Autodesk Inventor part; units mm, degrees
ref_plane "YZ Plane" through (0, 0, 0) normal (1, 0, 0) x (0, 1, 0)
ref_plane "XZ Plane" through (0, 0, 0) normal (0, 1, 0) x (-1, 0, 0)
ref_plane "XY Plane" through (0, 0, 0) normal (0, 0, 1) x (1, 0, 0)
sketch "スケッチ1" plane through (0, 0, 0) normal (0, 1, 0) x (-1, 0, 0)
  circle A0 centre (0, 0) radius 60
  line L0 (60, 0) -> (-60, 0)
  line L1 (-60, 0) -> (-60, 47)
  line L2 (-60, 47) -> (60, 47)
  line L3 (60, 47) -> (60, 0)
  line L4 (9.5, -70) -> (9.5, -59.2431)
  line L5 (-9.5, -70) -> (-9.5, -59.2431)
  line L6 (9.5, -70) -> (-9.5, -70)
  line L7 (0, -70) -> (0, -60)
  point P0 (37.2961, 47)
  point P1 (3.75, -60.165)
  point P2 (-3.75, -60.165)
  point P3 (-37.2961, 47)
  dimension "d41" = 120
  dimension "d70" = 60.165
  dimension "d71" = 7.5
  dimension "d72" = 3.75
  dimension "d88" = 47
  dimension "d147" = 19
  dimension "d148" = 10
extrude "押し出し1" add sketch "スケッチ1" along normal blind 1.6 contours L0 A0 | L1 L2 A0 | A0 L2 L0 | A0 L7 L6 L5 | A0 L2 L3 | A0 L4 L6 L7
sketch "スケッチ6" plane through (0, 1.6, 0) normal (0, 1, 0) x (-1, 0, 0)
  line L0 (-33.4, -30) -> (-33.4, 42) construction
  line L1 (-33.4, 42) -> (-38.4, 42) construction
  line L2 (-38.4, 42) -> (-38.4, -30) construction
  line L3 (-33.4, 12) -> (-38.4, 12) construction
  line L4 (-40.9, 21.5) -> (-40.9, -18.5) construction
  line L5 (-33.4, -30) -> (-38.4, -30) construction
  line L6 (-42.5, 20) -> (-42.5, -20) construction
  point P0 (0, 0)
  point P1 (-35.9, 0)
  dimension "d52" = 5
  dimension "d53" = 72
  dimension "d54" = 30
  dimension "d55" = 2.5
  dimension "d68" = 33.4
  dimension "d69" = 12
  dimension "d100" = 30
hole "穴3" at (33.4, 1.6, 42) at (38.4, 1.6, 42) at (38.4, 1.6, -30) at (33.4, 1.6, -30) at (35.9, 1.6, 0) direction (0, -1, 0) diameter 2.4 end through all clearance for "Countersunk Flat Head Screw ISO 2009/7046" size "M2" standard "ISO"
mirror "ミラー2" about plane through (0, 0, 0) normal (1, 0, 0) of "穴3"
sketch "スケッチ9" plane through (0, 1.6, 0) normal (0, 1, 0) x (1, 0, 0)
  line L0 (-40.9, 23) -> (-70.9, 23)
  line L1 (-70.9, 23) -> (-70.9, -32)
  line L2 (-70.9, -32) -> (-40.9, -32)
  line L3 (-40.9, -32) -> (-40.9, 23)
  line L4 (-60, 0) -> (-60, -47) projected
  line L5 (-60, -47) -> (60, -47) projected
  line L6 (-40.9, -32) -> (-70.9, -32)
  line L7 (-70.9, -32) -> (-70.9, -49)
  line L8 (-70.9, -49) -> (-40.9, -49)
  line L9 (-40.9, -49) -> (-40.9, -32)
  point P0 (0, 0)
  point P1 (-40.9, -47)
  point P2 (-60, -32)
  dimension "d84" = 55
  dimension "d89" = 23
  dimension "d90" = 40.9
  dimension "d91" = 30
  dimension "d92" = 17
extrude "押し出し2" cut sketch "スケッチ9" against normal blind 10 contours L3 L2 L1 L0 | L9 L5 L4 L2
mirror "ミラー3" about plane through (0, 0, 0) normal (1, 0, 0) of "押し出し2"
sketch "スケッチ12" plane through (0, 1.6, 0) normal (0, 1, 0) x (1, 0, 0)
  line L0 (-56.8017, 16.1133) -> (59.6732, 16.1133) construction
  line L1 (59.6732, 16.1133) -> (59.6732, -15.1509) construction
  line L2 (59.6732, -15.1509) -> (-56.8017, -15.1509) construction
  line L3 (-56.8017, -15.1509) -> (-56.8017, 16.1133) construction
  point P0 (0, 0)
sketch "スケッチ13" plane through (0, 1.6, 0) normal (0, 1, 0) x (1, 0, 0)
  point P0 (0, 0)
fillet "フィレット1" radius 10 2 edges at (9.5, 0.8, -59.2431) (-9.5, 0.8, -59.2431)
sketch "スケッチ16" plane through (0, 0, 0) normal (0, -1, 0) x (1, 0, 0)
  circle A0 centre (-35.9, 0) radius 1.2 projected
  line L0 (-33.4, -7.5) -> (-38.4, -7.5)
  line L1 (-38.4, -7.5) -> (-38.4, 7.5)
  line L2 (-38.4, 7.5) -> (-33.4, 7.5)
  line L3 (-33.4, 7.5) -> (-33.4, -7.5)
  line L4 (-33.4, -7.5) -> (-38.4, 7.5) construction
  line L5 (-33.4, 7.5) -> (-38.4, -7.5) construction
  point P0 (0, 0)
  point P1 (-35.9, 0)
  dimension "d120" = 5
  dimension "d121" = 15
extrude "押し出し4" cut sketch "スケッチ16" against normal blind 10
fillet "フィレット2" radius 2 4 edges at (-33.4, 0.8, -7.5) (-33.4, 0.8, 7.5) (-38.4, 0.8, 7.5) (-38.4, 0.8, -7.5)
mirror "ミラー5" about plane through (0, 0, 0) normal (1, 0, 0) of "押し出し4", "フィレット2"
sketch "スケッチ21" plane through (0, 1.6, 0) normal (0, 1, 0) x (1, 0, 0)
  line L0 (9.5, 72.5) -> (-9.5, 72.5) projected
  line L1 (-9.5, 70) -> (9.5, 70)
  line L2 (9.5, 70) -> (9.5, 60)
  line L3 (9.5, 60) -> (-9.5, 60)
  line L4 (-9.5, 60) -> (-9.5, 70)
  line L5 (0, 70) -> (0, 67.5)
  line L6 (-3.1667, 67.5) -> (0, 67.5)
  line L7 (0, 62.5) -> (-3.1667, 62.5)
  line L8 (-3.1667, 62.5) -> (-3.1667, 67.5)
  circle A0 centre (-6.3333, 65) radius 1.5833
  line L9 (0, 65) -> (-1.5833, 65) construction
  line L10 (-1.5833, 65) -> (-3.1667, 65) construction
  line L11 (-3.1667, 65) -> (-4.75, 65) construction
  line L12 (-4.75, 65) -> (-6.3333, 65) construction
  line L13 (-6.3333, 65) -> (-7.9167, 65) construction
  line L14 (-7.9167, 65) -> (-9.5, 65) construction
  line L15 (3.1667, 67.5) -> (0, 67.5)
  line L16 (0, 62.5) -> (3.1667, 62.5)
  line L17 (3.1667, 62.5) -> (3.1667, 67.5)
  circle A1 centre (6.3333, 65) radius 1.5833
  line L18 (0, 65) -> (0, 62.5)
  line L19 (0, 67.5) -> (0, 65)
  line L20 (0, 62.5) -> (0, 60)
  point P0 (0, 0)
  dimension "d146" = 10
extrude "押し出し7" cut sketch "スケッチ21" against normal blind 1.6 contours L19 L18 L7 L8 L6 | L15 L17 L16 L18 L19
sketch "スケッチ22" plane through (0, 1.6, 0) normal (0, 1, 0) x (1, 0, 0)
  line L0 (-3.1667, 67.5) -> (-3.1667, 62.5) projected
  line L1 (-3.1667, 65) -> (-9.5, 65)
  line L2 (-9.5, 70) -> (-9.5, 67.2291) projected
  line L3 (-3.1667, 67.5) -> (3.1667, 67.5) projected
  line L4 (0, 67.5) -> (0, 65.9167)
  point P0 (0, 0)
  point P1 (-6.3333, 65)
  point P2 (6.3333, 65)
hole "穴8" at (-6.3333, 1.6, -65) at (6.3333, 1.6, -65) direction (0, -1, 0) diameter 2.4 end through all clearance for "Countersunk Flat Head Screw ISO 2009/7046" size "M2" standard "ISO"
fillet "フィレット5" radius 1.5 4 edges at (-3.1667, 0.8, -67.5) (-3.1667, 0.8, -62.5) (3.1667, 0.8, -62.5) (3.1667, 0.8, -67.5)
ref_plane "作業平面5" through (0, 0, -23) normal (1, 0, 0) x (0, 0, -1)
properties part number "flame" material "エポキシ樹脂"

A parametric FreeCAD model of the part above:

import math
import FreeCAD as App
import Part
import Sketcher
from FreeCAD import Vector


def edges_at(feature, points):
    """Names of the edges that pass closest to the given points."""
    edges = feature.Shape.Edges
    near = lambda p: min(range(len(edges)), key=lambda i: edges[i].distToShape(Part.Vertex(*p))[0])
    return sorted({f"Edge{near(p) + 1}" for p in points})


def add_polygon(sketch, points):
    """Adds a closed chain of lines whose ends are joined by coincident constraints."""
    first, n = sketch.GeometryCount, len(points)
    for a, b in zip(points, points[1:] + points[:1]):
        sketch.addGeometry(Part.LineSegment(App.Vector(*a, 0), App.Vector(*b, 0)), False)
    for i in range(n):
        sketch.addConstraint(Sketcher.Constraint("Coincident", first + i, 2, first + (i + 1) % n, 1))

doc = App.newDocument("Part")
params = doc.addObject("Spreadsheet::Sheet", "Params")
for row, (alias, value) in enumerate([
    ("sketch1_radius", "60 mm"),
    ("sketch1_width", "19 mm"),
    ("sketch1_height", "47 mm"),
    ("pad1_length", "1.6 mm"),
    ("sketch2_diameter", "2.4 mm"),
    ("hole_diameter", "2.4 mm"),
    ("sketch3_width", "30 mm"),
    ("sketch3_height", "55 mm"),
    ("sketch3_height2", "15 mm"),
    ("sketch3_width2", "10.9 mm"),
    ("pocket1_length", "10 mm"),
    ("fillet_radius", "10 mm"),
    ("sketch4_width", "5 mm"),
    ("sketch4_height", "15 mm"),
    ("sketch4_diameter", "2.4 mm"),
    ("pocket2_length", "10 mm"),
    ("fillet2_radius", "2 mm"),
    ("sketch5_height", "5 mm"),
    ("pocket3_length", "1.6 mm"),
    ("sketch6_diameter", "2.4 mm"),
    ("hole2_diameter", "2.4 mm"),
    ("fillet3_radius", "1.5 mm"),
], start=1):
    params.set(f"A{row}", alias)
    params.set(f"B{row}", "=" + value)
    params.setAlias(f"B{row}", alias)

body = doc.addObject("PartDesign::Body", "Body")

sketch1 = body.newObject("Sketcher::SketchObject", "Sketch")
sketch1.AttachmentSupport = (doc.getObject("XZ_Plane"), [""])
sketch1.MapMode = "FlatFace"
sketch1.addGeometry(Part.ArcOfCircle(Part.Circle(Vector(0, 0, 0), Vector(0, 0, 1), 60), math.radians(180), math.radians(261)), False)
sketch1.addGeometry(Part.LineSegment(Vector(-60, 0, 0), Vector(-60, 47, 0)), False)
sketch1.addGeometry(Part.LineSegment(Vector(-60, 47, 0), Vector(60, 47, 0)), False)
sketch1.addGeometry(Part.LineSegment(Vector(60, 47, 0), Vector(60, 0, 0)), False)
sketch1.addGeometry(Part.ArcOfCircle(Part.Circle(Vector(0, 0, 0), Vector(0, 0, 1), 60), math.radians(-81), math.radians(0)), False)
sketch1.addGeometry(Part.LineSegment(Vector(10, -59, 0), Vector(10, -70, 0)), False)
sketch1.addGeometry(Part.LineSegment(Vector(10, -70, 0), Vector(-10, -70, 0)), False)
sketch1.addGeometry(Part.LineSegment(Vector(-10, -70, 0), Vector(-10, -59, 0)), False)
sketch1.addConstraint(Sketcher.Constraint("Tangent", 0, 1, 1, 1))
sketch1.addConstraint(Sketcher.Constraint("Coincident", 1, 2, 2, 1))
sketch1.addConstraint(Sketcher.Constraint("Coincident", 2, 2, 3, 1))
sketch1.addConstraint(Sketcher.Constraint("Tangent", 3, 2, 4, 2))
sketch1.addConstraint(Sketcher.Constraint("Coincident", 4, 1, 5, 1))
sketch1.addConstraint(Sketcher.Constraint("Coincident", 5, 2, 6, 1))
sketch1.addConstraint(Sketcher.Constraint("Coincident", 6, 2, 7, 1))
sketch1.addConstraint(Sketcher.Constraint("Coincident", 7, 2, 0, 2))
sketch1.addConstraint(Sketcher.Constraint("Vertical", 1))
sketch1.addConstraint(Sketcher.Constraint("Horizontal", 2))
sketch1.addConstraint(Sketcher.Constraint("Vertical", 3))
sketch1.addConstraint(Sketcher.Constraint("Vertical", 5))
sketch1.addConstraint(Sketcher.Constraint("Horizontal", 6))
sketch1.addConstraint(Sketcher.Constraint("Vertical", 7))
sketch1.addConstraint(Sketcher.Constraint("Coincident", 0, 3, -1, 1))
sketch1.addConstraint(Sketcher.Constraint("Coincident", 4, 3, -1, 1))
sketch1.addConstraint(Sketcher.Constraint("Equal", 0, 4))
sketch1.addConstraint(Sketcher.Constraint("Horizontal", 4, 1, 7, 2))
sketch1.addConstraint(Sketcher.Constraint("Radius", 0, 60.0))
sketch1.addConstraint(Sketcher.Constraint("DistanceX", 6, 2, 6, 1, 19.0))
sketch1.addConstraint(Sketcher.Constraint("DistanceY", 1, 1, 1, 2, 47.0))
sketch1.addConstraint(Sketcher.Constraint("DistanceY", 5, 2, -1, 1, 70.0))
sketch1.setExpression("Constraints[18]", "Params.sketch1_radius")
sketch1.setExpression("Constraints[19]", "Params.sketch1_width")
sketch1.setExpression("Constraints[20]", "Params.sketch1_height")
pad1 = body.newObject("PartDesign::Pad", "Pad")
pad1.Profile = sketch1
pad1.setExpression("Length", "Params.pad1_length")
pad1.Reversed = True

sketch2 = body.newObject("Sketcher::SketchObject", "Sketch001")
sketch2.AttachmentSupport = (doc.getObject("XZ_Plane"), [""])
sketch2.MapMode = "FlatFace"
sketch2.AttachmentOffset = App.Placement(Vector(0, 0, -1.6), App.Rotation())
sketch2.addGeometry(Part.Circle(Vector(33.4, 42, 0), Vector(0, 0, 1), 1.2), False)
sketch2.addGeometry(Part.Circle(Vector(38.4, 42, 0), Vector(0, 0, 1), 1.2), False)
sketch2.addGeometry(Part.Circle(Vector(38.4, -30, 0), Vector(0, 0, 1), 1.2), False)
sketch2.addGeometry(Part.Circle(Vector(33.4, -30, 0), Vector(0, 0, 1), 1.2), False)
sketch2.addGeometry(Part.Circle(Vector(35.9, 0, 0), Vector(0, 0, 1), 1.2), False)
sketch2.addConstraint(Sketcher.Constraint("Equal", 0, 1))
sketch2.addConstraint(Sketcher.Constraint("Equal", 1, 2))
sketch2.addConstraint(Sketcher.Constraint("Equal", 2, 3))
sketch2.addConstraint(Sketcher.Constraint("Equal", 3, 4))
sketch2.addConstraint(Sketcher.Constraint("PointOnObject", 4, 3, -1))
sketch2.addConstraint(Sketcher.Constraint("Horizontal", 0, 3, 1, 3))
sketch2.addConstraint(Sketcher.Constraint("Horizontal", 2, 3, 3, 3))
sketch2.addConstraint(Sketcher.Constraint("Vertical", 1, 3, 2, 3))
sketch2.addConstraint(Sketcher.Constraint("Vertical", 0, 3, 3, 3))
sketch2.addConstraint(Sketcher.Constraint("Diameter", 0, 2.4))
sketch2.addConstraint(Sketcher.Constraint("DistanceY", -1, 1, 0, 3, 42.0))
sketch2.addConstraint(Sketcher.Constraint("DistanceY", 2, 3, -1, 1, 30.0))
sketch2.addConstraint(Sketcher.Constraint("DistanceX", 0, 3, 1, 3, 5.0))
sketch2.addConstraint(Sketcher.Constraint("DistanceX", -1, 1, 0, 3, 33.4))
sketch2.addConstraint(Sketcher.Constraint("DistanceX", -1, 1, 4, 3, 35.9))
sketch2.setExpression("Constraints[9]", "Params.sketch2_diameter")
doc.recompute()
hole = body.newObject("PartDesign::Hole", "Hole")
hole.Profile = sketch2
hole.ThreadType = "None"
hole.setExpression("Diameter", "Params.hole_diameter")
hole.DepthType = "ThroughAll"
hole.Reversed = True
doc.recompute()

mirrored = body.newObject("PartDesign::Mirrored", "Mirrored")
mirrored.Originals = [hole]
mirrored.MirrorPlane = (doc.getObject("YZ_Plane"), [""])
body.Tip = mirrored

sketch3 = body.newObject("Sketcher::SketchObject", "Sketch002")
sketch3.AttachmentSupport = (doc.getObject("XZ_Plane"), [""])
sketch3.MapMode = "FlatFace"
sketch3.AttachmentOffset = App.Placement(Vector(0, 0, -1.6), App.Rotation())
add_polygon(sketch3, [(-41, -23), (-71, -23), (-71, 32), (-60, 32), (-60, 47), (-41, 47)])
sketch3.addConstraint(Sketcher.Constraint("Horizontal", 0))
sketch3.addConstraint(Sketcher.Constraint("Vertical", 1))
sketch3.addConstraint(Sketcher.Constraint("Horizontal", 2))
sketch3.addConstraint(Sketcher.Constraint("Vertical", 3))
sketch3.addConstraint(Sketcher.Constraint("Horizontal", 4))
sketch3.addConstraint(Sketcher.Constraint("Vertical", 5))
sketch3.addConstraint(Sketcher.Constraint("DistanceX", 0, 2, 0, 1, 30.0))
sketch3.addConstraint(Sketcher.Constraint("DistanceY", 1, 1, 1, 2, 55.0))
sketch3.addConstraint(Sketcher.Constraint("DistanceY", 0, 2, -1, 1, 23.0))
sketch3.addConstraint(Sketcher.Constraint("DistanceX", 4, 2, -1, 1, 40.9))
sketch3.addConstraint(Sketcher.Constraint("DistanceY", 3, 1, 3, 2, 15.0))
sketch3.addConstraint(Sketcher.Constraint("DistanceX", 2, 1, 2, 2, 10.9))
sketch3.setExpression("Constraints[12]", "Params.sketch3_width")
sketch3.setExpression("Constraints[13]", "Params.sketch3_height")
sketch3.setExpression("Constraints[16]", "Params.sketch3_height2")
sketch3.setExpression("Constraints[17]", "Params.sketch3_width2")
pocket1 = body.newObject("PartDesign::Pocket", "Pocket")
pocket1.Profile = sketch3
pocket1.setExpression("Length", "Params.pocket1_length")
pocket1.Reversed = True
doc.recompute()

mirrored2 = body.newObject("PartDesign::Mirrored", "Mirrored001")
mirrored2.Originals = [pocket1]
mirrored2.MirrorPlane = (doc.getObject("YZ_Plane"), [""])
body.Tip = mirrored2
doc.recompute()

fillet = body.newObject("PartDesign::Fillet", "Fillet")
fillet.Base = (mirrored2, edges_at(mirrored2, [(9.5, 0.8, -59.243), (-9.5, 0.8, -59.243)]))
fillet.setExpression("Radius", "Params.fillet_radius")

sketch4 = body.newObject("Sketcher::SketchObject", "Sketch003")
sketch4.AttachmentSupport = (doc.getObject("XZ_Plane"), [""])
sketch4.MapMode = "FlatFace"
add_polygon(sketch4, [(-38.4, -7.5), (-33.4, -7.5), (-33.4, 7.5), (-38.4, 7.5)])
sketch4.addGeometry(Part.Circle(Vector(-35.9, 0, 0), Vector(0, 0, 1), 1.2), False)
sketch4.addConstraint(Sketcher.Constraint("Horizontal", 0))
sketch4.addConstraint(Sketcher.Constraint("Vertical", 1))
sketch4.addConstraint(Sketcher.Constraint("Horizontal", 2))
sketch4.addConstraint(Sketcher.Constraint("Vertical", 3))
sketch4.addConstraint(Sketcher.Constraint("PointOnObject", 4, 3, -1))
sketch4.addConstraint(Sketcher.Constraint("DistanceX", 0, 1, 0, 2, 5.0))
sketch4.addConstraint(Sketcher.Constraint("DistanceY", 1, 1, 1, 2, 15.0))
sketch4.addConstraint(Sketcher.Constraint("Diameter", 4, 2.4))
sketch4.addConstraint(Sketcher.Constraint("DistanceX", 4, 3, -1, 1, 35.9))
sketch4.addConstraint(Sketcher.Constraint("DistanceX", 0, 2, -1, 1, 33.4))
sketch4.addConstraint(Sketcher.Constraint("DistanceY", 0, 2, -1, 1, 7.5))
sketch4.setExpression("Constraints[9]", "Params.sketch4_width")
sketch4.setExpression("Constraints[10]", "Params.sketch4_height")
sketch4.setExpression("Constraints[11]", "Params.sketch4_diameter")
pocket2 = body.newObject("PartDesign::Pocket", "Pocket001")
pocket2.Profile = sketch4
pocket2.setExpression("Length", "Params.pocket2_length")
doc.recompute()

fillet2 = body.newObject("PartDesign::Fillet", "Fillet001")
fillet2.Base = (pocket2, edges_at(pocket2, [
    (-33.4, 0.8, -7.5),
    (-33.4, 0.8, 7.5),
    (-38.4, 0.8, 7.5),
    (-38.4, 0.8, -7.5),
]))
fillet2.setExpression("Radius", "Params.fillet2_radius")
doc.recompute()

mirrored3 = body.newObject("PartDesign::Mirrored", "Mirrored002")
mirrored3.Originals = [pocket2, fillet2]
mirrored3.MirrorPlane = (doc.getObject("YZ_Plane"), [""])
body.Tip = mirrored3

sketch5 = body.newObject("Sketcher::SketchObject", "Sketch004")
sketch5.AttachmentSupport = (doc.getObject("XZ_Plane"), [""])
sketch5.MapMode = "FlatFace"
sketch5.AttachmentOffset = App.Placement(Vector(0, 0, -1.6), App.Rotation())
add_polygon(sketch5, [(-3, -62), (3, -62), (3, -68), (-3, -68)])
sketch5.addConstraint(Sketcher.Constraint("Horizontal", 0))
sketch5.addConstraint(Sketcher.Constraint("Vertical", 1))
sketch5.addConstraint(Sketcher.Constraint("Horizontal", 2))
sketch5.addConstraint(Sketcher.Constraint("Vertical", 3))
sketch5.addConstraint(Sketcher.Constraint("DistanceY", 1, 2, 1, 1, 5.0))
sketch5.addConstraint(Sketcher.Constraint("DistanceY", 0, 2, -1, 1, 62.5))
sketch5.addConstraint(Sketcher.Constraint("DistanceX", 0, 1, 0, 2, 6.3334))
sketch5.addConstraint(Sketcher.Constraint("DistanceX", -1, 1, 0, 2, 3.1667))
sketch5.setExpression("Constraints[8]", "Params.sketch5_height")
pocket3 = body.newObject("PartDesign::Pocket", "Pocket002")
pocket3.Profile = sketch5
pocket3.setExpression("Length", "Params.pocket3_length")
pocket3.Reversed = True

sketch6 = body.newObject("Sketcher::SketchObject", "Sketch005")
sketch6.AttachmentSupport = (doc.getObject("XZ_Plane"), [""])
sketch6.MapMode = "FlatFace"
sketch6.AttachmentOffset = App.Placement(Vector(0, 0, -1.6), App.Rotation())
sketch6.addGeometry(Part.Circle(Vector(-6.3, -65, 0), Vector(0, 0, 1), 1.2), False)
sketch6.addGeometry(Part.Circle(Vector(6.3, -65, 0), Vector(0, 0, 1), 1.2), False)
sketch6.addConstraint(Sketcher.Constraint("Equal", 0, 1))
sketch6.addConstraint(Sketcher.Constraint("Symmetric", 0, 3, 1, 3, -2))
sketch6.addConstraint(Sketcher.Constraint("Diameter", 0, 2.4))
sketch6.addConstraint(Sketcher.Constraint("DistanceY", 0, 3, -1, 1, 65.0))
sketch6.addConstraint(Sketcher.Constraint("DistanceX", 0, 3, -1, 1, 6.3333))
sketch6.setExpression("Constraints[2]", "Params.sketch6_diameter")
doc.recompute()
hole2 = body.newObject("PartDesign::Hole", "Hole001")
hole2.Profile = sketch6
hole2.ThreadType = "None"
hole2.setExpression("Diameter", "Params.hole2_diameter")
hole2.DepthType = "ThroughAll"
hole2.Reversed = True
doc.recompute()

fillet3 = body.newObject("PartDesign::Fillet", "Fillet002")
fillet3.Base = (hole2, edges_at(hole2, [
    (-3.167, 0.8, -67.5),
    (-3.167, 0.8, -62.5),
    (3.167, 0.8, -62.5),
    (3.167, 0.8, -67.5),
]))
fillet3.setExpression("Radius", "Params.fillet3_radius")

doc.recompute()
